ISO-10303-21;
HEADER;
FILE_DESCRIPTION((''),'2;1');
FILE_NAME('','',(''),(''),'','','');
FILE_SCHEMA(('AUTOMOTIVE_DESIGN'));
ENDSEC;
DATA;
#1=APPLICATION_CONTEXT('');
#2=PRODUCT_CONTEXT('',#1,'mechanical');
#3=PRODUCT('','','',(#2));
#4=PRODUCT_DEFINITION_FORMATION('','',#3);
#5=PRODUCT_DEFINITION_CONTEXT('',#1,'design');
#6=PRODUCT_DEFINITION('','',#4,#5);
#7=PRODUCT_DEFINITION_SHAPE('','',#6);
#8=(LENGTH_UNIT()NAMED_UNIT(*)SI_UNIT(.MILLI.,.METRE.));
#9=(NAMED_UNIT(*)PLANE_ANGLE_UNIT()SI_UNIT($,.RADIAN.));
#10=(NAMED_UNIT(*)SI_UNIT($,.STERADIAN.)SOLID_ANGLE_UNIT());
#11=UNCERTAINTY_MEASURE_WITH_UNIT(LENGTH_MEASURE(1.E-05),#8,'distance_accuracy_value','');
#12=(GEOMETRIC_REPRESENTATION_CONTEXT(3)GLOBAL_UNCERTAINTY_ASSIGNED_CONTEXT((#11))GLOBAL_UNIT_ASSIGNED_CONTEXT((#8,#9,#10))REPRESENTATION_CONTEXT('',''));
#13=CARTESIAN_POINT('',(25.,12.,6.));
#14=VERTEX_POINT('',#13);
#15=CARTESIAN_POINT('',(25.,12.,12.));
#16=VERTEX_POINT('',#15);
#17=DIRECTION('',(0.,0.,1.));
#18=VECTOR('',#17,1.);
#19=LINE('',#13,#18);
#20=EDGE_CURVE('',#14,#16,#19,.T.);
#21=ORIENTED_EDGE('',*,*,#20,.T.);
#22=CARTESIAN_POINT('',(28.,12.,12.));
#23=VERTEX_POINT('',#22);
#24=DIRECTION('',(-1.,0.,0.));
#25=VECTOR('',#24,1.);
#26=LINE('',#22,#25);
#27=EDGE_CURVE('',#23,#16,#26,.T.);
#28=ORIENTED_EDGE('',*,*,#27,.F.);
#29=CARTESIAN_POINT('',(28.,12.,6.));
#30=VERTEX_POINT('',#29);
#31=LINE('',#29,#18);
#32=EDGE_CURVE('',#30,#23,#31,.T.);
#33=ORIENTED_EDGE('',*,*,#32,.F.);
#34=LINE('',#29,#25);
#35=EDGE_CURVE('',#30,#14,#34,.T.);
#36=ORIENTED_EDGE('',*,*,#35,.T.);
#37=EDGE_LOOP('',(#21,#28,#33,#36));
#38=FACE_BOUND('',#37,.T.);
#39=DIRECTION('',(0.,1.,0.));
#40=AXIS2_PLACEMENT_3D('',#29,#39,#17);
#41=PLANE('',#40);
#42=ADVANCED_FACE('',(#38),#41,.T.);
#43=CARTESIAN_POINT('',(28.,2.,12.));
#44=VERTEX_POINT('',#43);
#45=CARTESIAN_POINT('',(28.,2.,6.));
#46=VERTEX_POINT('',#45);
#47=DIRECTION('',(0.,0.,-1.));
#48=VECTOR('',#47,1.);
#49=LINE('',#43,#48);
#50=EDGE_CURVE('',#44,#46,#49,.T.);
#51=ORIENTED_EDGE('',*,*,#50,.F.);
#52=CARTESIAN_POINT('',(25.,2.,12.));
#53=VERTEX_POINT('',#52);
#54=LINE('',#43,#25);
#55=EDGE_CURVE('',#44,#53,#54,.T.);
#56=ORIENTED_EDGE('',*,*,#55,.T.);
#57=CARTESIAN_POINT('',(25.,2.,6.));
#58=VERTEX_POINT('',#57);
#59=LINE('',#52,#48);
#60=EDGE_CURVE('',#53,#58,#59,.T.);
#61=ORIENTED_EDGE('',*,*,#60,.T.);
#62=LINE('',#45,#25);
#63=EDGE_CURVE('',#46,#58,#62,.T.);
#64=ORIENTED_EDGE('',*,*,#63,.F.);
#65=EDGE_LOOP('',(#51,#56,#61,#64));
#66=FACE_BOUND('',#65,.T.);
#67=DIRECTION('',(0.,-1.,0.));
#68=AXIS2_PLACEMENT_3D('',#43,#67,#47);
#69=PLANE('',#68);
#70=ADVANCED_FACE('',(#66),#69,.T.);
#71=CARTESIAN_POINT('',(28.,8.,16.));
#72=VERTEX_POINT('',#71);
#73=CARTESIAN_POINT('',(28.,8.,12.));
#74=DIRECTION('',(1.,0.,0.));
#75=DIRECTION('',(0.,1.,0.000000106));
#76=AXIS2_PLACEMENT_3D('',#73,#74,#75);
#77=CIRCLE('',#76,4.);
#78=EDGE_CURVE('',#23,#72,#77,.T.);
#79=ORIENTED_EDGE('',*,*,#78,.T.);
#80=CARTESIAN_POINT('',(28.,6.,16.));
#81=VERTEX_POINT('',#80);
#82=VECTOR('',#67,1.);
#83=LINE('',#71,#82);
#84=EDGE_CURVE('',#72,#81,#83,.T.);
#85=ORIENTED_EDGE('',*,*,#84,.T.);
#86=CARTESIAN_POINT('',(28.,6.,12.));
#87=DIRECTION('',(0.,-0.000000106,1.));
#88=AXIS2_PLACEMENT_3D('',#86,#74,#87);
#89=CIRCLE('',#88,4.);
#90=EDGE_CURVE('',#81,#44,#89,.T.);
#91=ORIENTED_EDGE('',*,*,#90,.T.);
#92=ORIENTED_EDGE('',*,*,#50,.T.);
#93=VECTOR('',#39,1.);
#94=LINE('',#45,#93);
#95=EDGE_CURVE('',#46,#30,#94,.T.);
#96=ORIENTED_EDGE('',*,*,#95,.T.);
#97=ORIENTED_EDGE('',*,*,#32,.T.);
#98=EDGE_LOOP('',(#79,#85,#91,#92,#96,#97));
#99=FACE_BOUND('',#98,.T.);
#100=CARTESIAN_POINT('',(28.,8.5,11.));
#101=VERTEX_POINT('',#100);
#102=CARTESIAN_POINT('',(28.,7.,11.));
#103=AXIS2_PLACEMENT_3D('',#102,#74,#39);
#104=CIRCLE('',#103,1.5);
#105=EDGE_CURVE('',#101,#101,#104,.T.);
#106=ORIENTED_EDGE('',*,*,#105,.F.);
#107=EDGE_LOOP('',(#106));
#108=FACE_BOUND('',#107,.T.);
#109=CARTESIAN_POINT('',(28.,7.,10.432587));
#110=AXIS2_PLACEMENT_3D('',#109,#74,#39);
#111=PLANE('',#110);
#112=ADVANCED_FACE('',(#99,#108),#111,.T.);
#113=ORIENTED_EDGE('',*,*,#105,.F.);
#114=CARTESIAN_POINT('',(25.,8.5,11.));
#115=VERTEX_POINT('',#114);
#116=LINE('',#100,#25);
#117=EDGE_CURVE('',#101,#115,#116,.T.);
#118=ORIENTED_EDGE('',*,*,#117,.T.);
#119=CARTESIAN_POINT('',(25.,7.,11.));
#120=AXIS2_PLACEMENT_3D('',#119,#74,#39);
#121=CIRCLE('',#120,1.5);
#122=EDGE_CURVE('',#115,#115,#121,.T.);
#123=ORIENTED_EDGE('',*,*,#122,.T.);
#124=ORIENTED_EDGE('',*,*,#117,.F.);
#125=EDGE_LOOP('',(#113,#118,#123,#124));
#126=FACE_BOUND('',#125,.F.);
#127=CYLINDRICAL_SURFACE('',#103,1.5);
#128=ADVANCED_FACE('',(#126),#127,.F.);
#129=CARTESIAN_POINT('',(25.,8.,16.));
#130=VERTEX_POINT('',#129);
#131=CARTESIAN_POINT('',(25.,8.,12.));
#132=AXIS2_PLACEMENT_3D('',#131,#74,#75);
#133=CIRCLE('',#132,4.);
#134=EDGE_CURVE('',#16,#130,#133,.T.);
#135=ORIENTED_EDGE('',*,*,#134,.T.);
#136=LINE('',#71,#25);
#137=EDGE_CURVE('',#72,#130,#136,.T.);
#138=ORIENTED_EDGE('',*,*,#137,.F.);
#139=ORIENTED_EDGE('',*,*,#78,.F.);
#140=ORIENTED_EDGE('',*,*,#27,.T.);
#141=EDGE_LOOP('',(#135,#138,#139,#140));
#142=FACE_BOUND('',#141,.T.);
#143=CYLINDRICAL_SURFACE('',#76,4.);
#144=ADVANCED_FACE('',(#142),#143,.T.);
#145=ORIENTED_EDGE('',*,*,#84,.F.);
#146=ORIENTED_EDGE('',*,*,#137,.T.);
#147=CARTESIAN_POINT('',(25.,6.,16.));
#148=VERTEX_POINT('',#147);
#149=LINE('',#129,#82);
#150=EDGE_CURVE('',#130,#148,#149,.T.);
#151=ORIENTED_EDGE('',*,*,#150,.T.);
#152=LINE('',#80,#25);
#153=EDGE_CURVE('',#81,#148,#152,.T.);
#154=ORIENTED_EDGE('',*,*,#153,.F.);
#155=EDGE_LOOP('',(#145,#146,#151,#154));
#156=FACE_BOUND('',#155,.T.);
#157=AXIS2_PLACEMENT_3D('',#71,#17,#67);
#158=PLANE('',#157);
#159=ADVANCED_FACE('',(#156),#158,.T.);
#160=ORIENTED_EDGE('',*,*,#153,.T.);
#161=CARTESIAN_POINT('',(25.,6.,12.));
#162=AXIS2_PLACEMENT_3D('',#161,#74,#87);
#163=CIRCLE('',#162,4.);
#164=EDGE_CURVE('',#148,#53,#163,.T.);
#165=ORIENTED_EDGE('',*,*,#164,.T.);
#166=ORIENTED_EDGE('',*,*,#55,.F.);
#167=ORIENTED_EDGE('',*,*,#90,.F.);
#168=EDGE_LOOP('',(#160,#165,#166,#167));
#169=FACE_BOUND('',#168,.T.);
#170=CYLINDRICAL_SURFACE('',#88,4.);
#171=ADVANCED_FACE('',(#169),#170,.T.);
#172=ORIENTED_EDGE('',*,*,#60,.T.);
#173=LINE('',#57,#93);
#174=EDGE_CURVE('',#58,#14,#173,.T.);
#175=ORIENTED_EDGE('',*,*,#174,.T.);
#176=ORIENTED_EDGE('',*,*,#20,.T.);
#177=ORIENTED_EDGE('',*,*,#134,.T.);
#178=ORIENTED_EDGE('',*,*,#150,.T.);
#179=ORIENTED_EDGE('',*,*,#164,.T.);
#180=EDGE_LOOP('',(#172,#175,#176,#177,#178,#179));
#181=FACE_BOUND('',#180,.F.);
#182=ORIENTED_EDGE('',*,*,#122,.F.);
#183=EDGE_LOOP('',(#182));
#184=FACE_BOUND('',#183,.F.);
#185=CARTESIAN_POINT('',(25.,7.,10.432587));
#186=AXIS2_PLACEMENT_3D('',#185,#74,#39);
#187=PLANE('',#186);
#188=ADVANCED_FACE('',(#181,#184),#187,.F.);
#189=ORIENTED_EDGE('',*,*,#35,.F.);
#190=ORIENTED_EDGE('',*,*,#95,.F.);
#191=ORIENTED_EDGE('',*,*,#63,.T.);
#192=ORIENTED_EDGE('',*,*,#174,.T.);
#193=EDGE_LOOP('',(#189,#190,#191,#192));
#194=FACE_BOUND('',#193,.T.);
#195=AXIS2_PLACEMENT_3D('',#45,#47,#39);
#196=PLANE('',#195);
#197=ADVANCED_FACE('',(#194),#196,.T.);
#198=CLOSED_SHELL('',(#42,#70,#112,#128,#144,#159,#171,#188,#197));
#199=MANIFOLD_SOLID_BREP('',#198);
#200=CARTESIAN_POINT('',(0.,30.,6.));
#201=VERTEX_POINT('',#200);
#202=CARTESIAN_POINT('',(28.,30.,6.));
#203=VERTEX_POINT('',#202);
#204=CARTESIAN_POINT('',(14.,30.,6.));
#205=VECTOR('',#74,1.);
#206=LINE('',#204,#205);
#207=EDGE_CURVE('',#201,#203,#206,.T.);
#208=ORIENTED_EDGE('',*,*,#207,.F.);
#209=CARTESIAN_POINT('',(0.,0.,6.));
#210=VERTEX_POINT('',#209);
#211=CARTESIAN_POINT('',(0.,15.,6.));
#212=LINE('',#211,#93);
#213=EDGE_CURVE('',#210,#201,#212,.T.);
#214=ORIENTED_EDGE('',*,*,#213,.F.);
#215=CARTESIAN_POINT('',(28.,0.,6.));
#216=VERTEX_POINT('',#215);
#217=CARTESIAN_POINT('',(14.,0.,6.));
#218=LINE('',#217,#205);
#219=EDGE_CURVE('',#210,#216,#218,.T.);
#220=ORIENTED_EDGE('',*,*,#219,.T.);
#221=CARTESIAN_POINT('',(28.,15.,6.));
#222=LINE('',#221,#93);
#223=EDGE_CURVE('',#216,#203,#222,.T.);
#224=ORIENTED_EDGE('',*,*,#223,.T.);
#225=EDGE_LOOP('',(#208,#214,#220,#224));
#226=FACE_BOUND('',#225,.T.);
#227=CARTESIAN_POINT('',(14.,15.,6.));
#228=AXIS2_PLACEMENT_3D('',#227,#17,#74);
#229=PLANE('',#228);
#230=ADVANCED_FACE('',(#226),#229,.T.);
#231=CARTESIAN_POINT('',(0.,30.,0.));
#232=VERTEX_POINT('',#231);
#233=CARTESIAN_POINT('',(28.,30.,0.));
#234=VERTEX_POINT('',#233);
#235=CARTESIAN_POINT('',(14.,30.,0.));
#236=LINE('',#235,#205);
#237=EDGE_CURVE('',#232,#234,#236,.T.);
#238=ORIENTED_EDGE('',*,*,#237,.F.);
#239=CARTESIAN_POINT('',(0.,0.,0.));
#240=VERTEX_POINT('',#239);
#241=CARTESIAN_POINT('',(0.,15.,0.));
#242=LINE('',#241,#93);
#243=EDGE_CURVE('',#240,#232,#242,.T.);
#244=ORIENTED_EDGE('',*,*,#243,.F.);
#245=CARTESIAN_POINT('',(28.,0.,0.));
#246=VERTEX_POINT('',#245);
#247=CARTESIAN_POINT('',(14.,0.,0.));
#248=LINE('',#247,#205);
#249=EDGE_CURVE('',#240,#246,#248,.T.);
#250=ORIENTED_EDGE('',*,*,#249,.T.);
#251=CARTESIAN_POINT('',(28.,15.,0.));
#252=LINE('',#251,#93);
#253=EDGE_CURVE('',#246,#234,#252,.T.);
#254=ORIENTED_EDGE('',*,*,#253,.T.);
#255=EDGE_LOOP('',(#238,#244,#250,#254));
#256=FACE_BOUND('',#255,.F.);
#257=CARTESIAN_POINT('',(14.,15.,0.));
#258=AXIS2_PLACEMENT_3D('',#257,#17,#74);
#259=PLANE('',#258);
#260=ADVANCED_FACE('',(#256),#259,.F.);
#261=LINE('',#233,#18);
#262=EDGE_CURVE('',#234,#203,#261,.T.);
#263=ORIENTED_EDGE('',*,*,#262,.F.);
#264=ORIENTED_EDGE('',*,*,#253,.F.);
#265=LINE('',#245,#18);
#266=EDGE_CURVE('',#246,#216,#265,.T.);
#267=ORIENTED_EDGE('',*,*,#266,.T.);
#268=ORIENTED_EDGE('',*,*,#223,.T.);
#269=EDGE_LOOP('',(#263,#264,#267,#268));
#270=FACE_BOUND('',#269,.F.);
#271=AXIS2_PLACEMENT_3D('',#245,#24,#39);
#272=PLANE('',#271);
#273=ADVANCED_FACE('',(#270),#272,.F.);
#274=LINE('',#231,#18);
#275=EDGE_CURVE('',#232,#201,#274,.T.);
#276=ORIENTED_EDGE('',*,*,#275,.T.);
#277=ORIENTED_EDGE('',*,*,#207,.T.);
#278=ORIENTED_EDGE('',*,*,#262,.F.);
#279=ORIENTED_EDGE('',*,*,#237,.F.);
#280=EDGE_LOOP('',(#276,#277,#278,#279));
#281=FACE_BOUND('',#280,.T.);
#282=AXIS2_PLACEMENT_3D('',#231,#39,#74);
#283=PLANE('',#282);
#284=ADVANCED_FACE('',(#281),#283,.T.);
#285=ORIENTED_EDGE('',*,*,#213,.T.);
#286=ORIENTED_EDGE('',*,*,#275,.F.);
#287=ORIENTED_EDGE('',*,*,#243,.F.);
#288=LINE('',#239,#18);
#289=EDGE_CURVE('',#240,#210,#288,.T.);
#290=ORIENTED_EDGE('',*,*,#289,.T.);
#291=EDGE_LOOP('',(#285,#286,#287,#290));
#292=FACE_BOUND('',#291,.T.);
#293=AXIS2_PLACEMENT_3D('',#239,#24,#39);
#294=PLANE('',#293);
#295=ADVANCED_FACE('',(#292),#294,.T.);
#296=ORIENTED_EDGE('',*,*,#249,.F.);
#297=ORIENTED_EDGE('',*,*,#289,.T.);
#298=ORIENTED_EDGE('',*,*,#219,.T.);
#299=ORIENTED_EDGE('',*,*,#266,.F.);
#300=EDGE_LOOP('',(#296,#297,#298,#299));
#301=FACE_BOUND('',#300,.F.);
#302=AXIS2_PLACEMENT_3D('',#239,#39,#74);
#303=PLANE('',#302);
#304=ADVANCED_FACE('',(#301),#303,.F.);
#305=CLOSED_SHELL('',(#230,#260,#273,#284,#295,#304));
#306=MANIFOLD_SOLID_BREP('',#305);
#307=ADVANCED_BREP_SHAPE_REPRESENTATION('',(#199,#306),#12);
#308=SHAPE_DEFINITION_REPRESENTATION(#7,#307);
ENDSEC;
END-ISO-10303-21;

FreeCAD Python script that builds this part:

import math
import FreeCAD as App
import Part
import Sketcher
from FreeCAD import Vector

doc = App.newDocument("Part")
body = doc.addObject("PartDesign::Body", "Body")

sketch1 = doc.addObject("Sketcher::SketchObject", "Sketch")
body.addObject(sketch1)
sketch1.AttachmentSupport = (doc.XY_Plane, [""])
sketch1.MapMode = "FlatFace"
sketch1.addGeometry([
    Part.LineSegment(Vector(0, 30, 0), Vector(0, 0, 0)),
    Part.LineSegment(Vector(0, 0, 0), Vector(28, 0, 0)),
    Part.LineSegment(Vector(28, 0, 0), Vector(28, 30, 0)),
    Part.LineSegment(Vector(28, 30, 0), Vector(0, 30, 0)),
], False)
sketch1.addConstraint([
    Sketcher.Constraint("Coincident", 0, 2, 1, 1),
    Sketcher.Constraint("Coincident", 1, 2, 2, 1),
    Sketcher.Constraint("Coincident", 2, 2, 3, 1),
    Sketcher.Constraint("Coincident", 3, 2, 0, 1),
    Sketcher.Constraint("Vertical", 0),
    Sketcher.Constraint("Horizontal", 1),
    Sketcher.Constraint("Vertical", 2),
    Sketcher.Constraint("Horizontal", 3),
    Sketcher.Constraint("Coincident", 0, 2, -1, 1),
    Sketcher.Constraint("DistanceX", 1, 1, 1, 2, 28.0),
    Sketcher.Constraint("DistanceY", 0, 2, 0, 1, 30.0),
])
pad1 = doc.addObject("PartDesign::Pad", "Pad")
body.addObject(pad1)
pad1.Profile = sketch1
pad1.Length = 6
body2 = doc.addObject("PartDesign::Body", "Body001")

sketch2 = doc.addObject("Sketcher::SketchObject", "Sketch001")
body2.addObject(sketch2)
sketch2.AttachmentSupport = (doc.getObject("YZ_Plane001"), [""])
sketch2.MapMode = "FlatFace"
sketch2.AttachmentOffset = App.Placement(Vector(0, 0, 28), App.Rotation())
sketch2.addGeometry([
    Part.LineSegment(Vector(2, 12, 0), Vector(2, 6, 0)),
    Part.LineSegment(Vector(2, 6, 0), Vector(12, 6, 0)),
    Part.LineSegment(Vector(12, 6, 0), Vector(12, 12, 0)),
    Part.ArcOfCircle(Part.Circle(Vector(8, 12, 0), Vector(0, 0, 1), 4), math.radians(0), math.radians(90)),
    Part.LineSegment(Vector(8, 16, 0), Vector(6, 16, 0)),
    Part.ArcOfCircle(Part.Circle(Vector(6, 12, 0), Vector(0, 0, 1), 4), math.radians(90), math.radians(180)),
    Part.Circle(Vector(7, 11, 0), Vector(0, 0, 1), 1.5),
], False)
sketch2.addConstraint([
    Sketcher.Constraint("Coincident", 0, 2, 1, 1),
    Sketcher.Constraint("Coincident", 1, 2, 2, 1),
    Sketcher.Constraint("Tangent", 2, 2, 3, 1),
    Sketcher.Constraint("Tangent", 3, 2, 4, 1),
    Sketcher.Constraint("Tangent", 4, 2, 5, 1),
    Sketcher.Constraint("Tangent", 5, 2, 0, 1),
    Sketcher.Constraint("Vertical", 0),
    Sketcher.Constraint("Horizontal", 1),
    Sketcher.Constraint("Vertical", 2),
    Sketcher.Constraint("Horizontal", 4),
    Sketcher.Constraint("Equal", 3, 5),
    Sketcher.Constraint("Diameter", 6, 3.0),
    Sketcher.Constraint("Radius", 3, 4.0),
    Sketcher.Constraint("DistanceX", 1, 1, 1, 2, 10.0),
    Sketcher.Constraint("DistanceY", 0, 2, 0, 1, 6.0),
    Sketcher.Constraint("DistanceX", -1, 1, 3, 3, 8.0),
    Sketcher.Constraint("DistanceY", -1, 1, 3, 3, 12.0),
    Sketcher.Constraint("DistanceX", -1, 1, 6, 3, 7.0),
    Sketcher.Constraint("DistanceY", -1, 1, 6, 3, 11.0),
])
pad2 = doc.addObject("PartDesign::Pad", "Pad001")
body2.addObject(pad2)
pad2.Profile = sketch2
pad2.Length = 3
pad2.Reversed = True

doc.recompute()
